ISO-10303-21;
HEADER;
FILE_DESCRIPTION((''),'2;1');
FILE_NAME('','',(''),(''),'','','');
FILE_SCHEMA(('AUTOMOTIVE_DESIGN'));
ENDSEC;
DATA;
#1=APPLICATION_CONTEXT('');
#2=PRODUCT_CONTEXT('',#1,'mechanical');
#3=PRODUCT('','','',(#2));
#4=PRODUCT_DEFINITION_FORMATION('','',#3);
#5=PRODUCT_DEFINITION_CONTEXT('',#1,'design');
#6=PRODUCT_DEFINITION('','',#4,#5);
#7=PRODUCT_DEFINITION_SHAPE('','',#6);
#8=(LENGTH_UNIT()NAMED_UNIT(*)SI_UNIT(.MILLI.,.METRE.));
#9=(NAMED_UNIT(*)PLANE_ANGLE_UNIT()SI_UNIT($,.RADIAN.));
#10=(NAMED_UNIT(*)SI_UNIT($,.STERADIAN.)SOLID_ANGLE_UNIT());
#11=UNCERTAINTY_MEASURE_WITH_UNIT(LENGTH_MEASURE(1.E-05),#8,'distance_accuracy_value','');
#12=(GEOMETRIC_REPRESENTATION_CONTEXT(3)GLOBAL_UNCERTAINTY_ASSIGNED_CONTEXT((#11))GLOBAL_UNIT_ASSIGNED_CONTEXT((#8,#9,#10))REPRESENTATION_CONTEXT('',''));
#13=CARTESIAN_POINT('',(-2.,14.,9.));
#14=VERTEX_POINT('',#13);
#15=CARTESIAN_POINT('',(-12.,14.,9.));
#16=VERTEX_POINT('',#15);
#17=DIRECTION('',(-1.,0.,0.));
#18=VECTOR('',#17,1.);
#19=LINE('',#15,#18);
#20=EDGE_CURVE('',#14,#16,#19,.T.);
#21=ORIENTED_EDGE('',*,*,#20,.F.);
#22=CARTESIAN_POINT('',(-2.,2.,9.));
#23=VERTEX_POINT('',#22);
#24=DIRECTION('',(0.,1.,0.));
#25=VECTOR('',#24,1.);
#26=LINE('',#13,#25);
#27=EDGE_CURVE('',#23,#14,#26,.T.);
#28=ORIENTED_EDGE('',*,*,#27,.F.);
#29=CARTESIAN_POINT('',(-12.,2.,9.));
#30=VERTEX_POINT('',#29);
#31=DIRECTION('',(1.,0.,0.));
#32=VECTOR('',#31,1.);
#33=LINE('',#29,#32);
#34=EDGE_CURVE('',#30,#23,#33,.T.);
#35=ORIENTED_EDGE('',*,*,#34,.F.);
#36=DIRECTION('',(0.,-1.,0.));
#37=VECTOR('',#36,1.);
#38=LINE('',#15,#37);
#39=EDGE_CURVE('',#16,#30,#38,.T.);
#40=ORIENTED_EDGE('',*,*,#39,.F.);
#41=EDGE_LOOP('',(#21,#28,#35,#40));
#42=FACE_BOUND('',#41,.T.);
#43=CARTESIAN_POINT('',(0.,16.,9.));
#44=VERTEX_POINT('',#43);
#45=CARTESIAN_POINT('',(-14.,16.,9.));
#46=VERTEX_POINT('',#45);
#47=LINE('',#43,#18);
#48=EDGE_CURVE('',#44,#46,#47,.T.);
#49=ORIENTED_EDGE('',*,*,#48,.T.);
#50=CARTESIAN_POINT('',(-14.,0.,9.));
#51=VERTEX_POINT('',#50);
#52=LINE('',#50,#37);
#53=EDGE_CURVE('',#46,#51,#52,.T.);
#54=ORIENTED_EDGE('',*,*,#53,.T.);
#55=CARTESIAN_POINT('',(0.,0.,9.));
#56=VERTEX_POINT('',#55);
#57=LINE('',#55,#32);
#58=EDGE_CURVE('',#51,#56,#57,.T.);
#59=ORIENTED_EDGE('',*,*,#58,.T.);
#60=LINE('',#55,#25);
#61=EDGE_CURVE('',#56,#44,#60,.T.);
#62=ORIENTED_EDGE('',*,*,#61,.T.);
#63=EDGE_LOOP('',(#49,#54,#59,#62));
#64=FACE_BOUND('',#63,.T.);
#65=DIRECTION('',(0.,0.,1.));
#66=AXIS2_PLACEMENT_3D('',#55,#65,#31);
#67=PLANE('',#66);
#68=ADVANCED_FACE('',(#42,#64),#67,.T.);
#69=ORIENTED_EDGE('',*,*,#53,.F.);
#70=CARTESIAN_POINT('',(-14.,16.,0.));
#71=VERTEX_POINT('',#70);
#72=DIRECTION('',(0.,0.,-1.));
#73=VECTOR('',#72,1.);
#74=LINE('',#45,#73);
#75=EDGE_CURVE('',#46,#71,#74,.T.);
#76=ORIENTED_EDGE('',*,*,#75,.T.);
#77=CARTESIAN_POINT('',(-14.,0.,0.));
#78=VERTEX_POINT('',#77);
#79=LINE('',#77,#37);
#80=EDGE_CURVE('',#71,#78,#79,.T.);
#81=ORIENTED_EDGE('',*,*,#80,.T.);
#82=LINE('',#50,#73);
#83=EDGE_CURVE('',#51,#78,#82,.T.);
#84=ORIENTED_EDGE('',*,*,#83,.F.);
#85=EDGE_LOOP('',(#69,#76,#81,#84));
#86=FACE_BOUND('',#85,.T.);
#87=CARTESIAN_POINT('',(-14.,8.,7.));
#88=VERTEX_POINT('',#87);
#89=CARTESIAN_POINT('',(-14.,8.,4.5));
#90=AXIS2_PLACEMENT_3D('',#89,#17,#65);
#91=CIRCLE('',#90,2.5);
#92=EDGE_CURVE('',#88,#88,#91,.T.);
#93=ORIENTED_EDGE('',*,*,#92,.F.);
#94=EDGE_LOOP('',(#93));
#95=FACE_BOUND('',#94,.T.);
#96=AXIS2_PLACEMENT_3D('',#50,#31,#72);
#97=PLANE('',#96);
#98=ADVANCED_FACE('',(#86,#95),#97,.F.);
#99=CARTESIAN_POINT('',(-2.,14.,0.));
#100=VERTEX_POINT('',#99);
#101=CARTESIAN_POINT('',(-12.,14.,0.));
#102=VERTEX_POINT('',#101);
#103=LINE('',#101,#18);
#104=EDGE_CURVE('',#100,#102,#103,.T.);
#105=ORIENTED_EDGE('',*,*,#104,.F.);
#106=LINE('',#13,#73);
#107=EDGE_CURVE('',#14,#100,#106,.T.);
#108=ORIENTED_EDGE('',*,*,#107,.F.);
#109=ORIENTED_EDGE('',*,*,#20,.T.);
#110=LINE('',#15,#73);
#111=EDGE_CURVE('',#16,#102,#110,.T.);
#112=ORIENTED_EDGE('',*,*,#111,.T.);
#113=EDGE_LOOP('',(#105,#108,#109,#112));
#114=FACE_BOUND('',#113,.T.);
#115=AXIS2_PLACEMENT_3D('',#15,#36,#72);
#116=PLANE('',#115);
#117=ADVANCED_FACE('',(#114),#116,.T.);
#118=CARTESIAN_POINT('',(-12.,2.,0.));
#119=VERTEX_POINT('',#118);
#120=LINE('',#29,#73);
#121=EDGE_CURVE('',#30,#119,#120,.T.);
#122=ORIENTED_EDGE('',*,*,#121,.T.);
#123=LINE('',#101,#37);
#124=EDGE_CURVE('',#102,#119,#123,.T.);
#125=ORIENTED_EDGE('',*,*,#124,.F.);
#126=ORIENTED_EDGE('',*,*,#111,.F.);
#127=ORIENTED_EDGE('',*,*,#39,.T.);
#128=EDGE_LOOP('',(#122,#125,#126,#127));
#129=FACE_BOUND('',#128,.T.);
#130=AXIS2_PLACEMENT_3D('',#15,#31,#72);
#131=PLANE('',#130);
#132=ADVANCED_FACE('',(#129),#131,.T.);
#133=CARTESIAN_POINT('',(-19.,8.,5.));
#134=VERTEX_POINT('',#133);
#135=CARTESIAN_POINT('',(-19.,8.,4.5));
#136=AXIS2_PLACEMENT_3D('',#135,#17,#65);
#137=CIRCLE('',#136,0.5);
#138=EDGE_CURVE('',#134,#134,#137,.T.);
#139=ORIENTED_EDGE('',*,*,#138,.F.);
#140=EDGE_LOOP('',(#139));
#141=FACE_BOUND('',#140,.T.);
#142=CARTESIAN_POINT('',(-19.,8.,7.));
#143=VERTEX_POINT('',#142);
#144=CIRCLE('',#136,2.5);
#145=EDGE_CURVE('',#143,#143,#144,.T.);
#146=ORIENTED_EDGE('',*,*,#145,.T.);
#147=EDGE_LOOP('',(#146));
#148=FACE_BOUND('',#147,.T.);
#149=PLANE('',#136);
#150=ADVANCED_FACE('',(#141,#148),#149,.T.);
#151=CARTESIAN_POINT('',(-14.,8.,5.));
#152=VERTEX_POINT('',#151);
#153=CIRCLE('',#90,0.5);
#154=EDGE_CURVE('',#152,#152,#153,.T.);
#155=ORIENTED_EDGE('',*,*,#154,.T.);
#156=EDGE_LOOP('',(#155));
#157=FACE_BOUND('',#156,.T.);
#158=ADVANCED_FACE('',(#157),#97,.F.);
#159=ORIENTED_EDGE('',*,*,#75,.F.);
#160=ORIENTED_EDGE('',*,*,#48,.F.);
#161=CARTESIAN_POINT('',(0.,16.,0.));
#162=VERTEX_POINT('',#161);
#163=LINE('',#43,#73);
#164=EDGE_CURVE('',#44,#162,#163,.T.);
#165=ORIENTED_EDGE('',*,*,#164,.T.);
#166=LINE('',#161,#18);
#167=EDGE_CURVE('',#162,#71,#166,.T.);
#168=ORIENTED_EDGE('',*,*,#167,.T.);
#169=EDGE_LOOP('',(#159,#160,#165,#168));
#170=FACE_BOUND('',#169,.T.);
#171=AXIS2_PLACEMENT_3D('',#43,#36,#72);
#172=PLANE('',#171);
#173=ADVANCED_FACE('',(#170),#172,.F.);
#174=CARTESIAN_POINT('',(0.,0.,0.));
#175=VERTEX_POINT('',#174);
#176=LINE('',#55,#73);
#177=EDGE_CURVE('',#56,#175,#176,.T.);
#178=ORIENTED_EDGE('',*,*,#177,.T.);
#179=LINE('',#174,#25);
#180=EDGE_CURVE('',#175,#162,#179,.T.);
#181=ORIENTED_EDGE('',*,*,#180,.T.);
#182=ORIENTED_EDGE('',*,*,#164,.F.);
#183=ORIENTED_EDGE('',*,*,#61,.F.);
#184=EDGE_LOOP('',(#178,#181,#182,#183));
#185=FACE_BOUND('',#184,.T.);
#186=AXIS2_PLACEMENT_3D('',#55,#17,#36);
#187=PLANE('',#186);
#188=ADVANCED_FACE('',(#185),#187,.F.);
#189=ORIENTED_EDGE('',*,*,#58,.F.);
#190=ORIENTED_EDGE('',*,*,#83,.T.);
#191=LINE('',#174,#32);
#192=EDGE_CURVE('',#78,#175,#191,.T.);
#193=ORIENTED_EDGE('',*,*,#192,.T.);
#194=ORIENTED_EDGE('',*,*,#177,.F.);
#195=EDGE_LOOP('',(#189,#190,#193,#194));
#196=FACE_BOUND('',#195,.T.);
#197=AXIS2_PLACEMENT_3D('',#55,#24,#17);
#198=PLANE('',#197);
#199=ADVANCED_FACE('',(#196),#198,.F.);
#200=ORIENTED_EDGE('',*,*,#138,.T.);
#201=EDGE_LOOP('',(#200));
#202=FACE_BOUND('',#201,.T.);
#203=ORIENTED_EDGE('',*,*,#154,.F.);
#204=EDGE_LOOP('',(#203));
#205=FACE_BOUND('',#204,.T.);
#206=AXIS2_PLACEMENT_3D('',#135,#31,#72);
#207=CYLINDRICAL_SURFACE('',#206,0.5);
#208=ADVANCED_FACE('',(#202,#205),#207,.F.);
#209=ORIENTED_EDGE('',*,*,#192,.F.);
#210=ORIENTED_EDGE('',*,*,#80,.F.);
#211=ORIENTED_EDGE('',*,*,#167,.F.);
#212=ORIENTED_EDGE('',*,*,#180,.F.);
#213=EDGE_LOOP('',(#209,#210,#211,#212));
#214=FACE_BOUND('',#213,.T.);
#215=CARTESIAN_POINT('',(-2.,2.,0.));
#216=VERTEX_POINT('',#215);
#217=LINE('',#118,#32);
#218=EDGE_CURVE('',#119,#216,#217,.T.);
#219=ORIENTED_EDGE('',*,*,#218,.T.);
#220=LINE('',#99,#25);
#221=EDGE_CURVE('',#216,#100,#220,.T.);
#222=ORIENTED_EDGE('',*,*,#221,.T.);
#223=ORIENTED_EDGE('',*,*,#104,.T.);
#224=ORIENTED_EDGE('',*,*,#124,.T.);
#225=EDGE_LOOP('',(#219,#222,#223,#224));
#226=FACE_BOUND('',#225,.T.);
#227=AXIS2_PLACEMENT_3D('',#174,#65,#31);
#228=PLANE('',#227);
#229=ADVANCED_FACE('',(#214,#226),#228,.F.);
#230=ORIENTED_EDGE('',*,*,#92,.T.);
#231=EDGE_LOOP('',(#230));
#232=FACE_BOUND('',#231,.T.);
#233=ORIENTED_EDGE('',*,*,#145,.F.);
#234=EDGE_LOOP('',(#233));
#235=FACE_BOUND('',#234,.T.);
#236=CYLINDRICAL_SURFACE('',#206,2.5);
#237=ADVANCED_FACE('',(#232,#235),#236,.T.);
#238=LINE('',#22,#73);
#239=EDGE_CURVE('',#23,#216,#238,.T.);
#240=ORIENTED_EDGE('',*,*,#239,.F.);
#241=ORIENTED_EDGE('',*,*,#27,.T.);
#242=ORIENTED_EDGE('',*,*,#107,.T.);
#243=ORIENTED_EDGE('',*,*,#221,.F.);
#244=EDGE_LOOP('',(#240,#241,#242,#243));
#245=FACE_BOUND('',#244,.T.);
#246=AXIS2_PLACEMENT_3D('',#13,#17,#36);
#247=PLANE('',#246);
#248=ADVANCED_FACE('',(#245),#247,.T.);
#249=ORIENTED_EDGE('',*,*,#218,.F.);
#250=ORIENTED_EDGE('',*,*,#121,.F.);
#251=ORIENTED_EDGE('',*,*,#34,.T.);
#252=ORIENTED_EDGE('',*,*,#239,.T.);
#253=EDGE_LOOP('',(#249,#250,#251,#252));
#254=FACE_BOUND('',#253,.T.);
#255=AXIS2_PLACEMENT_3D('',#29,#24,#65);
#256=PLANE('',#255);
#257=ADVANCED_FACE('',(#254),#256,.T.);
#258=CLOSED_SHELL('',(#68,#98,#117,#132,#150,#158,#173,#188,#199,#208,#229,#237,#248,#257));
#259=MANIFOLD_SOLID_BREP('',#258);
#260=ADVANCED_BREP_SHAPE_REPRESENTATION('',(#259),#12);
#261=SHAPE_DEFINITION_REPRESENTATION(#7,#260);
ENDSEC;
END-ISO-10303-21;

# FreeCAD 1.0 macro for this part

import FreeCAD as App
import Part
import Sketcher

V = App.Vector
Q = App.Units.Quantity


def add_polygon(sketch, points):
    """Adds a closed chain of lines whose ends are joined by coincident constraints."""
    first, n = sketch.GeometryCount, len(points)
    for a, b in zip(points, points[1:] + points[:1]):
        sketch.addGeometry(Part.LineSegment(App.Vector(*a, 0), App.Vector(*b, 0)), False)
    for i in range(n):
        sketch.addConstraint(Sketcher.Constraint("Coincident", first + i, 2, first + (i + 1) % n, 1))

doc = App.newDocument("Part")
params = doc.addObject("Spreadsheet::Sheet", "Params")
for row, (alias, value) in enumerate([
    ("sketch1_width", "14 mm"),
    ("sketch1_width2", "10 mm"),
    ("sketch1_height", "16 mm"),
    ("sketch1_height2", "12 mm"),
    ("pad1_length", "9 mm"),
    ("sketch2_diameter", "5 mm"),
    ("sketch2_diameter2", "1 mm"),
    ("pad2_length", "5 mm"),
], start=1):
    params.set(f"A{row}", alias)
    params.set(f"B{row}", "=" + value)
    params.setAlias(f"B{row}", alias)

body = doc.addObject("PartDesign::Body", "Body")

sketch1 = doc.addObject("Sketcher::SketchObject", "Sketch")
body.addObject(sketch1)
sketch1.AttachmentSupport = (doc.XY_Plane, [""])
sketch1.MapMode = "FlatFace"
add_polygon(sketch1, [(-14, 16), (-14, 0), (0, 0), (0, 16)])
add_polygon(sketch1, [(-2, 2), (-12, 2), (-12, 14), (-2, 14)])
sketch1.addConstraint([
    Sketcher.Constraint("Vertical", 0),
    Sketcher.Constraint("Horizontal", 1),
    Sketcher.Constraint("Vertical", 2),
    Sketcher.Constraint("Horizontal", 3),
    Sketcher.Constraint("Horizontal", 4),
    Sketcher.Constraint("Vertical", 5),
    Sketcher.Constraint("Horizontal", 6),
    Sketcher.Constraint("Vertical", 7),
    Sketcher.Constraint("Coincident", 1, 2, -1, 1),
    Sketcher.Constraint("DistanceX", 1, 1, 1, 2, Q("14 mm")),
    Sketcher.Constraint("DistanceX", 4, 2, 4, 1, Q("10 mm")),
    Sketcher.Constraint("DistanceY", 0, 2, 0, 1, Q("16 mm")),
    Sketcher.Constraint("DistanceY", 5, 1, 5, 2, Q("12 mm")),
    Sketcher.Constraint("DistanceX", 4, 2, -1, 1, Q("12 mm")),
    Sketcher.Constraint("DistanceY", -1, 1, 4, 2, Q("2 mm")),
])
sketch1.setExpression("Constraints[17]", "Params.sketch1_width")
sketch1.setExpression("Constraints[18]", "Params.sketch1_width2")
sketch1.setExpression("Constraints[19]", "Params.sketch1_height")
sketch1.setExpression("Constraints[20]", "Params.sketch1_height2")
pad1 = doc.addObject("PartDesign::Pad", "Pad")
body.addObject(pad1)
pad1.Profile = sketch1
pad1.setExpression("Length", "Params.pad1_length")

sketch2 = doc.addObject("Sketcher::SketchObject", "Sketch001")
body.addObject(sketch2)
sketch2.AttachmentSupport = (doc.YZ_Plane, [""])
sketch2.MapMode = "FlatFace"
sketch2.AttachmentOffset = App.Placement(V(0, 0, -14), App.Rotation())
sketch2.addGeometry([
    Part.Circle(V(8, 4.5, 0), V(0, 0, 1), 2.5),
    Part.Circle(V(8, 4.5, 0), V(0, 0, 1), 0.5),
], False)
sketch2.addConstraint([
    Sketcher.Constraint("Coincident", 1, 3, 0, 3),
    Sketcher.Constraint("Diameter", 0, Q("5 mm")),
    Sketcher.Constraint("Diameter", 1, Q("1 mm")),
    Sketcher.Constraint("DistanceX", -1, 1, 0, 3, Q("8 mm")),
    Sketcher.Constraint("DistanceY", -1, 1, 0, 3, Q("4.5 mm")),
])
sketch2.setExpression("Constraints[1]", "Params.sketch2_diameter")
sketch2.setExpression("Constraints[2]", "Params.sketch2_diameter2")
pad2 = doc.addObject("PartDesign::Pad", "Pad001")
body.addObject(pad2)
pad2.Profile = sketch2
pad2.setExpression("Length", "Params.pad2_length")
pad2.Reversed = True

doc.recompute()
